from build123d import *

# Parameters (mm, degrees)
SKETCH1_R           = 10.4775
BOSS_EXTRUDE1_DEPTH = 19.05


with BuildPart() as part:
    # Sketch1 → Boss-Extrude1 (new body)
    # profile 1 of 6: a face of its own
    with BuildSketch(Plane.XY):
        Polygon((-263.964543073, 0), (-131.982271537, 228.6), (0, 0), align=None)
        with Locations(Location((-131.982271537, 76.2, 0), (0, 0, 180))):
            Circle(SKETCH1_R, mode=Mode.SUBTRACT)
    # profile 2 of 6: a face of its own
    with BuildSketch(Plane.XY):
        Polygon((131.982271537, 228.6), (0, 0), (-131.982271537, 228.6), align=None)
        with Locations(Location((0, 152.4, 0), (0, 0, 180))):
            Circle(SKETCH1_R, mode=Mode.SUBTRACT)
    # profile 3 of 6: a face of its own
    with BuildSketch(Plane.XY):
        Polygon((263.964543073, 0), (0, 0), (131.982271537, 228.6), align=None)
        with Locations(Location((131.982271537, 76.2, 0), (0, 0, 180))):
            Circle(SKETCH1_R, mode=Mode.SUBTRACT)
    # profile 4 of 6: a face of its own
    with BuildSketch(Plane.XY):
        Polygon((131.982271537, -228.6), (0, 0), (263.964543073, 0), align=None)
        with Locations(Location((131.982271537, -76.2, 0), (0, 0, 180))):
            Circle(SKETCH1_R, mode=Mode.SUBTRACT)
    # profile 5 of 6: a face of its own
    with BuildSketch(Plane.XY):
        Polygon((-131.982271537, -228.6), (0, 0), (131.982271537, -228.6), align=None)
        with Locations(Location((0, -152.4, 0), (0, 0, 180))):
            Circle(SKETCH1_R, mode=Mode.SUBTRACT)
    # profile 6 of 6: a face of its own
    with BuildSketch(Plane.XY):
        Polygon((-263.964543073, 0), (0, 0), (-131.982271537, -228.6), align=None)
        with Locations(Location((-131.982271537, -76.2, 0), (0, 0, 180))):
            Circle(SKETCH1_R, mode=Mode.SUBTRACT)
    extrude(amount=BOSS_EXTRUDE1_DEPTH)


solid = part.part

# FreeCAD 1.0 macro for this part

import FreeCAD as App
import Part
import Sketcher
from FreeCAD import Vector
Q = App.Units.Quantity

doc = App.newDocument("Part")
body = doc.addObject("PartDesign::Body", "Body")

# Sketch on XY plane
sketch1 = body.newObject("Sketcher::SketchObject", "Sketch")
sketch1.AttachmentSupport = (doc.getObject("XY_Plane"), [""])
sketch1.MapMode = "FlatFace"
sketch1.addGeometry(Part.LineSegment(Vector(-132, 229, 0), Vector(-264, 0, 0)), False)
sketch1.addGeometry(Part.LineSegment(Vector(-264, 0, 0), Vector(-132, -229, 0)), False)
sketch1.addGeometry(Part.LineSegment(Vector(-132, -229, 0), Vector(132, -229, 0)), False)
sketch1.addGeometry(Part.LineSegment(Vector(132, -229, 0), Vector(264, 0, 0)), False)
sketch1.addGeometry(Part.LineSegment(Vector(264, 0, 0), Vector(132, 229, 0)), False)
sketch1.addGeometry(Part.LineSegment(Vector(132, 229, 0), Vector(-132, 229, 0)), False)
sketch1.addGeometry(Part.Circle(Vector(-132, 76, 0), Vector(0, 0, 1), 10), False)
sketch1.addGeometry(Part.Circle(Vector(-132, -76, 0), Vector(0, 0, 1), 10), False)
sketch1.addGeometry(Part.Circle(Vector(0, 152, 0), Vector(0, 0, 1), 10), False)
sketch1.addGeometry(Part.Circle(Vector(0, -152, 0), Vector(0, 0, 1), 10), False)
sketch1.addGeometry(Part.Circle(Vector(132, 76, 0), Vector(0, 0, 1), 10), False)
sketch1.addGeometry(Part.Circle(Vector(132, -76, 0), Vector(0, 0, 1), 10), False)
sketch1.addConstraint(Sketcher.Constraint("Coincident", 0, 2, 1, 1))
sketch1.addConstraint(Sketcher.Constraint("Coincident", 1, 2, 2, 1))
sketch1.addConstraint(Sketcher.Constraint("Coincident", 2, 2, 3, 1))
sketch1.addConstraint(Sketcher.Constraint("Coincident", 3, 2, 4, 1))
sketch1.addConstraint(Sketcher.Constraint("Coincident", 4, 2, 5, 1))
sketch1.addConstraint(Sketcher.Constraint("Coincident", 5, 2, 0, 1))
sketch1.addConstraint(Sketcher.Constraint("Horizontal", 2))
sketch1.addConstraint(Sketcher.Constraint("Horizontal", 5))
sketch1.addConstraint(Sketcher.Constraint("Equal", 6, 7))
sketch1.addConstraint(Sketcher.Constraint("Equal", 7, 8))
sketch1.addConstraint(Sketcher.Constraint("Equal", 8, 9))
sketch1.addConstraint(Sketcher.Constraint("Equal", 9, 10))
sketch1.addConstraint(Sketcher.Constraint("Equal", 10, 11))
sketch1.addConstraint(Sketcher.Constraint("Symmetric", 8, 3, 9, 3, -1, 1))
sketch1.addConstraint(Sketcher.Constraint("Symmetric", 7, 3, 10, 3, -1, 1))
sketch1.addConstraint(Sketcher.Constraint("Symmetric", 6, 3, 11, 3, -1, 1))
sketch1.addConstraint(Sketcher.Constraint("Symmetric", 0, 2, 3, 2, -1, 1))
sketch1.addConstraint(Sketcher.Constraint("Symmetric", 1, 2, 4, 2, -1, 1))
sketch1.addConstraint(Sketcher.Constraint("Symmetric", 6, 3, 10, 3, -2))
sketch1.addConstraint(Sketcher.Constraint("PointOnObject", 8, 3, -2))
sketch1.addConstraint(Sketcher.Constraint("PointOnObject", 0, 2, -1))
sketch1.addConstraint(Sketcher.Constraint("Parallel", 0, 3))
sketch1.addConstraint(Sketcher.Constraint("Vertical", 7, 3, 1, 2))
sketch1.addConstraint(Sketcher.Constraint("Vertical", 11, 3, 2, 2))
sketch1.addConstraint(Sketcher.Constraint("Diameter", 6, Q("0.825 in")))
sketch1.addConstraint(Sketcher.Constraint("DistanceY", -1, 1, 6, 3, Q("3 in")))
sketch1.addConstraint(Sketcher.Constraint("DistanceY", -1, 1, 8, 3, Q("6 in")))
sketch1.addConstraint(Sketcher.Constraint("DistanceY", 1, 2, -1, 1, Q("9 in")))
sketch1.addConstraint(Sketcher.Constraint("Angle", 0, Q("-120 deg")))
sketch1.addConstraint(Sketcher.Constraint("DistanceX", 2, 1, 2, 2, Q("263.964543 mm")))
pad1 = body.newObject("PartDesign::Pad", "Pad")
pad1.Profile = sketch1
pad1.Length = Q("0.75 in")

doc.recompute()
